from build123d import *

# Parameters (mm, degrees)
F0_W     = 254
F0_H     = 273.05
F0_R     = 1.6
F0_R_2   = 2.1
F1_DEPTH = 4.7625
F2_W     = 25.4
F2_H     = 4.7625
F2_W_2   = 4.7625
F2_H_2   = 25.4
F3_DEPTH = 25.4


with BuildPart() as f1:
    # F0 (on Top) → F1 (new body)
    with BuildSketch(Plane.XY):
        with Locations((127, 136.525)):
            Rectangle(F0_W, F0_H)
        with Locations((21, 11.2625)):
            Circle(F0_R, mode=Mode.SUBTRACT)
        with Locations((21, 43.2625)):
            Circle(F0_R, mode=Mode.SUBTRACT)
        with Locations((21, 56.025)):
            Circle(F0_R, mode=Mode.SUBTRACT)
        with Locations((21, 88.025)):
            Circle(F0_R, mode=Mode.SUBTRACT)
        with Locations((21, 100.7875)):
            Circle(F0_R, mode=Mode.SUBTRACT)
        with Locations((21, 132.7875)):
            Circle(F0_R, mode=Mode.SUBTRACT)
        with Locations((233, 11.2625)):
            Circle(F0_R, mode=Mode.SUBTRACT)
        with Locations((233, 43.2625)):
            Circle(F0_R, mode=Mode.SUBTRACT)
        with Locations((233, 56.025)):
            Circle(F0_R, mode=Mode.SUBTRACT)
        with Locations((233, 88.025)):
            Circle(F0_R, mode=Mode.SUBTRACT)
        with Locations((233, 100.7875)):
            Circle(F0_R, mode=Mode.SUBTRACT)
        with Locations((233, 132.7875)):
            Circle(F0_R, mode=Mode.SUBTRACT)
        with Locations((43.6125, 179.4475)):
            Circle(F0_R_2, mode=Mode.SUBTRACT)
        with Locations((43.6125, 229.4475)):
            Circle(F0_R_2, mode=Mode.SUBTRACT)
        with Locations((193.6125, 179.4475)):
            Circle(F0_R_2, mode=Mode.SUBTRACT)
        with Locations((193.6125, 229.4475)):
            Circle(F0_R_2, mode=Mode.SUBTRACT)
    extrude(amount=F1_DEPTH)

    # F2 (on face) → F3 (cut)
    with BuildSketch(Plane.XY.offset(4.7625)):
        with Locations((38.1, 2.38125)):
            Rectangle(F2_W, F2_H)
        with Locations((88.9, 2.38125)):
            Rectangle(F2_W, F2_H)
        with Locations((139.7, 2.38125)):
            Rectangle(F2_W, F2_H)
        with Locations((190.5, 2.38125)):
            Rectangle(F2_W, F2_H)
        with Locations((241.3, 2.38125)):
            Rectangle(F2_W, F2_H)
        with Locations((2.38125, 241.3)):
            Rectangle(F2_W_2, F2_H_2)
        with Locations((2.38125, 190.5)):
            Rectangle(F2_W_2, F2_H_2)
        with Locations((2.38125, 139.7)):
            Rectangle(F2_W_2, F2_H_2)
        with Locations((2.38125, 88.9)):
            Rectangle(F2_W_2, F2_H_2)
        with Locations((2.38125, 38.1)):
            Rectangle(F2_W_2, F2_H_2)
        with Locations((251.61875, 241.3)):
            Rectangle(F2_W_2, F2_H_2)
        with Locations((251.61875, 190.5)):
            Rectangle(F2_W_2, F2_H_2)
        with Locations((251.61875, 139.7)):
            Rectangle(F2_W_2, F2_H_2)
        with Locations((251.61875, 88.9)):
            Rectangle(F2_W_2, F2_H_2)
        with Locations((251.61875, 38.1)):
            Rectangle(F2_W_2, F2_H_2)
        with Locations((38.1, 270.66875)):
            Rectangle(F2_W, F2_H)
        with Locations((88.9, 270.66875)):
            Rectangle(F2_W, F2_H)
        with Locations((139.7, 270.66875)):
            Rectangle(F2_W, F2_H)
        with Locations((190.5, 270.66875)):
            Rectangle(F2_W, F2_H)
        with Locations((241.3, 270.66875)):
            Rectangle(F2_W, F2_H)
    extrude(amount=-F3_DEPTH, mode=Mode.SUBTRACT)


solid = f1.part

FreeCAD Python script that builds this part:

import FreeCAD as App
import Part
import Sketcher
Q = App.Units.Quantity


def add_polygon(sketch, points):
    """Adds a closed chain of lines whose ends are joined by coincident constraints."""
    first, n = sketch.GeometryCount, len(points)
    for a, b in zip(points, points[1:] + points[:1]):
        sketch.addGeometry(Part.LineSegment(App.Vector(*a, 0), App.Vector(*b, 0)), False)
    for i in range(n):
        sketch.addConstraint(Sketcher.Constraint("Coincident", first + i, 2, first + (i + 1) % n, 1))

doc = App.newDocument("Part")
params = doc.addObject("Spreadsheet::Sheet", "Params")
for row, (alias, value) in enumerate([
    ("sketch1_width", "10 in"),
    ("sketch1_height", "10.75 in"),
    ("pad1_length", "0.1875 in"),
    ("sketch2_width", "1 in"),
    ("sketch2_width2", "0.1875 in"),
    ("pocket1_length", "1 in"),
], start=1):
    params.set(f"A{row}", alias)
    params.set(f"B{row}", "=" + value)
    params.setAlias(f"B{row}", alias)

body = doc.addObject("PartDesign::Body", "Body")

# Sketch on XY plane
sketch1 = body.newObject("Sketcher::SketchObject", "Sketch")
sketch1.AttachmentSupport = (doc.getObject("XY_Plane"), [""])
sketch1.MapMode = "FlatFace"
add_polygon(sketch1, [(0, 273.1), (0, 0), (254, 0), (254, 273.1)])  # lines 0-3
sketch1.addGeometry(Part.Circle(App.Vector(21, 11.3, 0), App.Vector(0, 0, 1), 1.6), False)  # 4
sketch1.addGeometry(Part.Circle(App.Vector(21, 43.3, 0), App.Vector(0, 0, 1), 1.6), False)  # 5
sketch1.addGeometry(Part.Circle(App.Vector(21, 56, 0), App.Vector(0, 0, 1), 1.6), False)  # 6
sketch1.addGeometry(Part.Circle(App.Vector(21, 88, 0), App.Vector(0, 0, 1), 1.6), False)  # 7
sketch1.addGeometry(Part.Circle(App.Vector(21, 100.8, 0), App.Vector(0, 0, 1), 1.6), False)  # 8
sketch1.addGeometry(Part.Circle(App.Vector(233, 11.3, 0), App.Vector(0, 0, 1), 1.6), False)  # 9
sketch1.addGeometry(Part.Circle(App.Vector(233, 43.3, 0), App.Vector(0, 0, 1), 1.6), False)  # 10
sketch1.addGeometry(Part.Circle(App.Vector(233, 56, 0), App.Vector(0, 0, 1), 1.6), False)  # 11
sketch1.addGeometry(Part.Circle(App.Vector(233, 88, 0), App.Vector(0, 0, 1), 1.6), False)  # 12
sketch1.addGeometry(Part.Circle(App.Vector(233, 100.8, 0), App.Vector(0, 0, 1), 1.6), False)  # 13
sketch1.addGeometry(Part.Circle(App.Vector(21, 132.8, 0), App.Vector(0, 0, 1), 1.6), False)  # 14
sketch1.addGeometry(Part.Circle(App.Vector(43.6, 179.4, 0), App.Vector(0, 0, 1), 2.1), False)  # 15
sketch1.addGeometry(Part.Circle(App.Vector(43.6, 229.4, 0), App.Vector(0, 0, 1), 2.1), False)  # 16
sketch1.addGeometry(Part.Circle(App.Vector(233, 132.8, 0), App.Vector(0, 0, 1), 1.6), False)  # 17
sketch1.addGeometry(Part.Circle(App.Vector(193.6, 179.4, 0), App.Vector(0, 0, 1), 2.1), False)  # 18
sketch1.addGeometry(Part.Circle(App.Vector(193.6, 229.4, 0), App.Vector(0, 0, 1), 2.1), False)  # 19
sketch1.addConstraint([
    Sketcher.Constraint("Vertical", 0),
    Sketcher.Constraint("Horizontal", 1),
    Sketcher.Constraint("Vertical", 2),
    Sketcher.Constraint("Horizontal", 3),
    Sketcher.Constraint("Coincident", 0, 2, -1, 1),
    Sketcher.Constraint("Equal", 4, 5),
    Sketcher.Constraint("Equal", 5, 6),
    Sketcher.Constraint("Equal", 6, 7),
    Sketcher.Constraint("Equal", 7, 8),
    Sketcher.Constraint("Equal", 8, 9),
    Sketcher.Constraint("Equal", 9, 10),
    Sketcher.Constraint("Equal", 10, 11),
    Sketcher.Constraint("Equal", 11, 12),
    Sketcher.Constraint("Equal", 12, 13),
    Sketcher.Constraint("Equal", 13, 14),
    Sketcher.Constraint("Equal", 15, 16),
    Sketcher.Constraint("Equal", 14, 17),
    Sketcher.Constraint("Equal", 16, 18),
    Sketcher.Constraint("Equal", 18, 19),
    Sketcher.Constraint("Horizontal", 4, 3, 9, 3),
    Sketcher.Constraint("Horizontal", 5, 3, 10, 3),
    Sketcher.Constraint("Horizontal", 6, 3, 11, 3),
    Sketcher.Constraint("Horizontal", 7, 3, 12, 3),
    Sketcher.Constraint("Horizontal", 8, 3, 13, 3),
    Sketcher.Constraint("Horizontal", 14, 3, 17, 3),
    Sketcher.Constraint("Horizontal", 15, 3, 18, 3),
    Sketcher.Constraint("Horizontal", 16, 3, 19, 3),
    Sketcher.Constraint("Vertical", 4, 3, 5, 3),
    Sketcher.Constraint("Vertical", 5, 3, 6, 3),
    Sketcher.Constraint("Vertical", 6, 3, 7, 3),
    Sketcher.Constraint("Vertical", 7, 3, 8, 3),
    Sketcher.Constraint("Vertical", 9, 3, 10, 3),
    Sketcher.Constraint("Vertical", 10, 3, 11, 3),
    Sketcher.Constraint("Vertical", 11, 3, 12, 3),
    Sketcher.Constraint("Vertical", 12, 3, 13, 3),
    Sketcher.Constraint("Vertical", 8, 3, 14, 3),
    Sketcher.Constraint("Vertical", 15, 3, 16, 3),
    Sketcher.Constraint("Vertical", 13, 3, 17, 3),
    Sketcher.Constraint("Vertical", 18, 3, 19, 3),
    Sketcher.Constraint("DistanceX", 1, 1, 1, 2, Q("10 in")),
    Sketcher.Constraint("DistanceY", 0, 2, 0, 1, Q("10.75 in")),
    Sketcher.Constraint("Diameter", 4, Q("3.2 mm")),
    Sketcher.Constraint("Diameter", 15, Q("4.2 mm")),
    Sketcher.Constraint("DistanceX", -1, 1, 4, 3, Q("21 mm")),
    Sketcher.Constraint("DistanceY", -1, 1, 4, 3, Q("11.2625 mm")),
    Sketcher.Constraint("DistanceY", -1, 1, 5, 3, Q("43.2625 mm")),
    Sketcher.Constraint("DistanceY", -1, 1, 6, 3, Q("56.025 mm")),
    Sketcher.Constraint("DistanceY", -1, 1, 7, 3, Q("88.025 mm")),
    Sketcher.Constraint("DistanceY", -1, 1, 8, 3, Q("100.7875 mm")),
    Sketcher.Constraint("DistanceX", -1, 1, 9, 3, Q("233 mm")),
    Sketcher.Constraint("DistanceY", -1, 1, 14, 3, Q("132.7875 mm")),
    Sketcher.Constraint("DistanceX", -1, 1, 15, 3, Q("43.6125 mm")),
    Sketcher.Constraint("DistanceY", -1, 1, 15, 3, Q("179.4475 mm")),
    Sketcher.Constraint("DistanceY", -1, 1, 16, 3, Q("229.4475 mm")),
    Sketcher.Constraint("DistanceX", -1, 1, 18, 3, Q("193.6125 mm")),
])
sketch1.setExpression("Constraints[43]", "Params.sketch1_width")
sketch1.setExpression("Constraints[44]", "Params.sketch1_height")
pad1 = body.newObject("PartDesign::Pad", "Pad")
pad1.Profile = sketch1
pad1.setExpression("Length", "Params.pad1_length")

# Sketch on XY plane
sketch2 = body.newObject("Sketcher::SketchObject", "Sketch001")
sketch2.AttachmentSupport = (doc.getObject("XY_Plane"), [""])
sketch2.MapMode = "FlatFace"
sketch2.AttachmentOffset = App.Placement(App.Vector(0, 0, 0.1875 * 25.4), App.Rotation())
add_polygon(sketch2, [(25.4, 4.8), (25.4, 0), (50.8, 0), (50.8, 4.8)])  # lines 0-3
add_polygon(sketch2, [(76.2, 4.8), (76.2, 0), (101.6, 0), (101.6, 4.8)])  # lines 4-7
add_polygon(sketch2, [(127, 4.8), (127, 0), (152.4, 0), (152.4, 4.8)])  # lines 8-11
add_polygon(sketch2, [(177.8, 4.8), (177.8, 0), (203.2, 0), (203.2, 4.8)])  # lines 12-15
add_polygon(sketch2, [(228.6, 4.8), (228.6, 0), (254, 0), (254, 4.8)])  # lines 16-19
add_polygon(sketch2, [(0, 254), (0, 228.6), (4.8, 228.6), (4.8, 254)])  # lines 20-23
add_polygon(sketch2, [(0, 203.2), (0, 177.8), (4.8, 177.8), (4.8, 203.2)])  # lines 24-27
add_polygon(sketch2, [(0, 152.4), (0, 127), (4.8, 127), (4.8, 152.4)])  # lines 28-31
add_polygon(sketch2, [(0, 101.6), (0, 76.2), (4.8, 76.2), (4.8, 101.6)])  # lines 32-35
add_polygon(sketch2, [(0, 50.8), (0, 25.4), (4.8, 25.4), (4.8, 50.8)])  # lines 36-39
add_polygon(sketch2, [(249.2, 254), (249.2, 228.6), (254, 228.6), (254, 254)])  # lines 40-43
add_polygon(sketch2, [(249.2, 203.2), (249.2, 177.8), (254, 177.8), (254, 203.2)])  # lines 44-47
add_polygon(sketch2, [(249.2, 152.4), (249.2, 127), (254, 127), (254, 152.4)])  # lines 48-51
add_polygon(sketch2, [(249.2, 101.6), (249.2, 76.2), (254, 76.2), (254, 101.6)])  # lines 52-55
add_polygon(sketch2, [(249.2, 50.8), (249.2, 25.4), (254, 25.4), (254, 50.8)])  # lines 56-59
add_polygon(sketch2, [(25.4, 273.1), (25.4, 268.3), (50.8, 268.3), (50.8, 273.1)])  # lines 60-63
add_polygon(sketch2, [(76.2, 273.1), (76.2, 268.3), (101.6, 268.3), (101.6, 273.1)])  # lines 64-67
add_polygon(sketch2, [(127, 273.1), (127, 268.3), (152.4, 268.3), (152.4, 273.1)])  # lines 68-71
add_polygon(sketch2, [(177.8, 273.1), (177.8, 268.3), (203.2, 268.3), (203.2, 273.1)])  # lines 72-75
add_polygon(sketch2, [(228.6, 273.1), (228.6, 268.3), (254, 268.3), (254, 273.1)])  # lines 76-79
sketch2.addConstraint([
    Sketcher.Constraint("Vertical", 0),
    Sketcher.Constraint("Horizontal", 1),
    Sketcher.Constraint("Vertical", 2),
    Sketcher.Constraint("Horizontal", 3),
    Sketcher.Constraint("Vertical", 4),
    Sketcher.Constraint("Horizontal", 5),
    Sketcher.Constraint("Vertical", 6),
    Sketcher.Constraint("Horizontal", 7),
    Sketcher.Constraint("Vertical", 8),
    Sketcher.Constraint("Horizontal", 9),
    Sketcher.Constraint("Vertical", 10),
    Sketcher.Constraint("Horizontal", 11),
    Sketcher.Constraint("Vertical", 12),
    Sketcher.Constraint("Horizontal", 13),
    Sketcher.Constraint("Vertical", 14),
    Sketcher.Constraint("Horizontal", 15),
    Sketcher.Constraint("Vertical", 16),
    Sketcher.Constraint("Horizontal", 17),
    Sketcher.Constraint("Vertical", 18),
    Sketcher.Constraint("Horizontal", 19),
    Sketcher.Constraint("Vertical", 20),
    Sketcher.Constraint("Horizontal", 21),
    Sketcher.Constraint("Vertical", 22),
    Sketcher.Constraint("Horizontal", 23),
    Sketcher.Constraint("Vertical", 24),
    Sketcher.Constraint("Horizontal", 25),
    Sketcher.Constraint("Vertical", 26),
    Sketcher.Constraint("Horizontal", 27),
    Sketcher.Constraint("Vertical", 28),
    Sketcher.Constraint("Horizontal", 29),
    Sketcher.Constraint("Vertical", 30),
    Sketcher.Constraint("Horizontal", 31),
    Sketcher.Constraint("Vertical", 32),
    Sketcher.Constraint("Horizontal", 33),
    Sketcher.Constraint("Vertical", 34),
    Sketcher.Constraint("Horizontal", 35),
    Sketcher.Constraint("Vertical", 36),
    Sketcher.Constraint("Horizontal", 37),
    Sketcher.Constraint("Vertical", 38),
    Sketcher.Constraint("Horizontal", 39),
    Sketcher.Constraint("Vertical", 40),
    Sketcher.Constraint("Horizontal", 41),
    Sketcher.Constraint("Vertical", 42),
    Sketcher.Constraint("Horizontal", 43),
    Sketcher.Constraint("Vertical", 44),
    Sketcher.Constraint("Horizontal", 45),
    Sketcher.Constraint("Vertical", 46),
    Sketcher.Constraint("Horizontal", 47),
    Sketcher.Constraint("Vertical", 48),
    Sketcher.Constraint("Horizontal", 49),
    Sketcher.Constraint("Vertical", 50),
    Sketcher.Constraint("Horizontal", 51),
    Sketcher.Constraint("Vertical", 52),
    Sketcher.Constraint("Horizontal", 53),
    Sketcher.Constraint("Vertical", 54),
    Sketcher.Constraint("Horizontal", 55),
    Sketcher.Constraint("Vertical", 56),
    Sketcher.Constraint("Horizontal", 57),
    Sketcher.Constraint("Vertical", 58),
    Sketcher.Constraint("Horizontal", 59),
    Sketcher.Constraint("Vertical", 60),
    Sketcher.Constraint("Horizontal", 61),
    Sketcher.Constraint("Vertical", 62),
    Sketcher.Constraint("Horizontal", 63),
    Sketcher.Constraint("Vertical", 64),
    Sketcher.Constraint("Horizontal", 65),
    Sketcher.Constraint("Vertical", 66),
    Sketcher.Constraint("Horizontal", 67),
    Sketcher.Constraint("Vertical", 68),
    Sketcher.Constraint("Horizontal", 69),
    Sketcher.Constraint("Vertical", 70),
    Sketcher.Constraint("Horizontal", 71),
    Sketcher.Constraint("Vertical", 72),
    Sketcher.Constraint("Horizontal", 73),
    Sketcher.Constraint("Vertical", 74),
    Sketcher.Constraint("Horizontal", 75),
    Sketcher.Constraint("Vertical", 76),
    Sketcher.Constraint("Horizontal", 77),
    Sketcher.Constraint("Vertical", 78),
    Sketcher.Constraint("Horizontal", 79),
    Sketcher.Constraint("PointOnObject", 0, 2, -1),
    Sketcher.Constraint("PointOnObject", 4, 2, -1),
    Sketcher.Constraint("PointOnObject", 8, 2, -1),
    Sketcher.Constraint("PointOnObject", 12, 2, -1),
    Sketcher.Constraint("PointOnObject", 16, 2, -1),
    Sketcher.Constraint("PointOnObject", 20, 2, -2),
    Sketcher.Constraint("PointOnObject", 24, 2, -2),
    Sketcher.Constraint("PointOnObject", 28, 2, -2),
    Sketcher.Constraint("PointOnObject", 32, 2, -2),
    Sketcher.Constraint("PointOnObject", 36, 2, -2),
    Sketcher.Constraint("Horizontal", 3, 2, 6, 2),
    Sketcher.Constraint("Horizontal", 7, 2, 10, 2),
    Sketcher.Constraint("Horizontal", 11, 2, 14, 2),
    Sketcher.Constraint("Horizontal", 15, 2, 18, 2),
    Sketcher.Constraint("Horizontal", 21, 2, 40, 2),
    Sketcher.Constraint("Horizontal", 23, 2, 42, 2),
    Sketcher.Constraint("Horizontal", 25, 2, 44, 2),
    Sketcher.Constraint("Horizontal", 27, 2, 46, 2),
    Sketcher.Constraint("Horizontal", 29, 2, 48, 2),
    Sketcher.Constraint("Horizontal", 31, 2, 50, 2),
    Sketcher.Constraint("Horizontal", 33, 2, 52, 2),
    Sketcher.Constraint("Horizontal", 35, 2, 54, 2),
    Sketcher.Constraint("Horizontal", 37, 2, 56, 2),
    Sketcher.Constraint("Horizontal", 39, 2, 58, 2),
    Sketcher.Constraint("Horizontal", 61, 2, 64, 2),
    Sketcher.Constraint("Horizontal", 63, 2, 66, 2),
    Sketcher.Constraint("Horizontal", 65, 2, 68, 2),
    Sketcher.Constraint("Horizontal", 67, 2, 70, 2),
    Sketcher.Constraint("Horizontal", 69, 2, 72, 2),
    Sketcher.Constraint("Horizontal", 71, 2, 74, 2),
    Sketcher.Constraint("Horizontal", 73, 2, 76, 2),
    Sketcher.Constraint("Horizontal", 75, 2, 78, 2),
    Sketcher.Constraint("Vertical", 22, 2, 25, 2),
    Sketcher.Constraint("Vertical", 26, 2, 29, 2),
    Sketcher.Constraint("Vertical", 30, 2, 33, 2),
    Sketcher.Constraint("Vertical", 34, 2, 37, 2),
    Sketcher.Constraint("Vertical", 18, 2, 41, 2),
    Sketcher.Constraint("Vertical", 43, 2, 44, 2),
    Sketcher.Constraint("Vertical", 42, 2, 45, 2),
    Sketcher.Constraint("Vertical", 47, 2, 48, 2),
    Sketcher.Constraint("Vertical", 46, 2, 49, 2),
    Sketcher.Constraint("Vertical", 51, 2, 52, 2),
    Sketcher.Constraint("Vertical", 50, 2, 53, 2),
    Sketcher.Constraint("Vertical", 55, 2, 56, 2),
    Sketcher.Constraint("Vertical", 54, 2, 57, 2),
    Sketcher.Constraint("Vertical", 3, 2, 60, 2),
    Sketcher.Constraint("Vertical", 2, 2, 61, 2),
    Sketcher.Constraint("Vertical", 7, 2, 64, 2),
    Sketcher.Constraint("Vertical", 6, 2, 65, 2),
    Sketcher.Constraint("Vertical", 11, 2, 68, 2),
    Sketcher.Constraint("Vertical", 10, 2, 69, 2),
    Sketcher.Constraint("Vertical", 15, 2, 72, 2),
    Sketcher.Constraint("Vertical", 14, 2, 73, 2),
    Sketcher.Constraint("Vertical", 19, 2, 76, 2),
    Sketcher.Constraint("Vertical", 58, 2, 77, 2),
    Sketcher.Constraint("Equal", 3, 5),
    Sketcher.Constraint("Equal", 7, 9),
    Sketcher.Constraint("Equal", 11, 13),
    Sketcher.Constraint("Equal", 15, 17),
    Sketcher.Constraint("Equal", 39, 41),
    Sketcher.Constraint("Equal", 59, 0),
    Sketcher.Constraint("Equal", 79, 20),
    Sketcher.Constraint("Equal", 22, 24),
    Sketcher.Constraint("Equal", 26, 28),
    Sketcher.Constraint("Equal", 30, 32),
    Sketcher.Constraint("Equal", 34, 36),
    Sketcher.Constraint("Equal", 18, 60),
    Sketcher.Constraint("DistanceX", 1, 1, 1, 2, Q("1 in")),
    Sketcher.Constraint("DistanceX", -1, 1, 0, 2, Q("1 in")),
    Sketcher.Constraint("DistanceX", -1, 1, 4, 2, Q("3 in")),
    Sketcher.Constraint("DistanceX", -1, 1, 8, 2, Q("5 in")),
    Sketcher.Constraint("DistanceX", -1, 1, 12, 2, Q("7 in")),
    Sketcher.Constraint("DistanceX", -1, 1, 16, 2, Q("9 in")),
    Sketcher.Constraint("DistanceY", -1, 1, 20, 2, Q("9 in")),
    Sketcher.Constraint("DistanceY", -1, 1, 24, 2, Q("7 in")),
    Sketcher.Constraint("DistanceY", -1, 1, 28, 2, Q("5 in")),
    Sketcher.Constraint("DistanceY", -1, 1, 32, 2, Q("3 in")),
    Sketcher.Constraint("DistanceY", -1, 1, 36, 2, Q("1 in")),
    Sketcher.Constraint("DistanceX", 21, 1, 21, 2, Q("0.1875 in")),
    Sketcher.Constraint("DistanceY", -1, 1, 62, 2, Q("10.75 in")),
])
sketch2.setExpression("Constraints[227]", "Params.sketch2_width")
sketch2.setExpression("Constraints[238]", "Params.sketch2_width2")
pocket1 = body.newObject("PartDesign::Pocket", "Pocket")
pocket1.Profile = sketch2
pocket1.setExpression("Length", "Params.pocket1_length")

doc.recompute()
